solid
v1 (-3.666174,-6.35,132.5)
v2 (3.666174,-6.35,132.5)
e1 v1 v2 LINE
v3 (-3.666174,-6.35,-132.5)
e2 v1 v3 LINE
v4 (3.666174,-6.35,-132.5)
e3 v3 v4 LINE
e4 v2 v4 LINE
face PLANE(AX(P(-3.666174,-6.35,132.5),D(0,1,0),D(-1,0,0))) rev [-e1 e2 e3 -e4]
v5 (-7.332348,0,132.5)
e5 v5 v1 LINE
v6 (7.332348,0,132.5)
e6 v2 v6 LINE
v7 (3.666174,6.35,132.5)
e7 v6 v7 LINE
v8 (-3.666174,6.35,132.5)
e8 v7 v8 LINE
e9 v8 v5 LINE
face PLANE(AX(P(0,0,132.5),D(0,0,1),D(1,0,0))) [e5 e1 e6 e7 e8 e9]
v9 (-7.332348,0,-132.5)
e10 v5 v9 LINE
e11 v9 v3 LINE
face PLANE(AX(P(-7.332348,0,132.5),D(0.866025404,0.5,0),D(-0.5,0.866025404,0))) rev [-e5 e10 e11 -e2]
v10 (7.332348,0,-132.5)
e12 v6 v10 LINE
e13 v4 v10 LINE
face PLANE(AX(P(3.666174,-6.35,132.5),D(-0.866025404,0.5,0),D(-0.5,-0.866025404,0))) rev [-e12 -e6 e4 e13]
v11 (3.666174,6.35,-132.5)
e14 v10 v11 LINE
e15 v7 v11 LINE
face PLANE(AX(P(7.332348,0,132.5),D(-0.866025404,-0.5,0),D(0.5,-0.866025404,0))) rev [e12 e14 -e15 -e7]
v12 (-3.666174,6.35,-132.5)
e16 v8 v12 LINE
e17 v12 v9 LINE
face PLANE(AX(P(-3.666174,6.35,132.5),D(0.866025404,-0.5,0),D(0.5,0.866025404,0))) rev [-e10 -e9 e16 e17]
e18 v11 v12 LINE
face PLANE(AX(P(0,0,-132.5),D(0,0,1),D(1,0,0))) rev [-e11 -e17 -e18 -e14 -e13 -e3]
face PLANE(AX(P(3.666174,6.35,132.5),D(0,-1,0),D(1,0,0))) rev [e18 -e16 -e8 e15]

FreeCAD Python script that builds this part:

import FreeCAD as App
import Part
import Sketcher

V = App.Vector
Q = App.Units.Quantity


def add_polygon(sketch, points):
    """Adds a closed chain of lines whose ends are joined by coincident constraints."""
    first, n = sketch.GeometryCount, len(points)
    for a, b in zip(points, points[1:] + points[:1]):
        sketch.addGeometry(Part.LineSegment(App.Vector(*a, 0), App.Vector(*b, 0)), False)
    for i in range(n):
        sketch.addConstraint(Sketcher.Constraint("Coincident", first + i, 2, first + (i + 1) % n, 1))

doc = App.newDocument("Part")
body = doc.addObject("PartDesign::Body", "Body")

# Sketch on XY plane
sketch1 = doc.addObject("Sketcher::SketchObject", "Sketch")
body.addObject(sketch1)
sketch1.AttachmentSupport = (doc.XY_Plane, [""])
sketch1.MapMode = "FlatFace"
add_polygon(sketch1, [(7, 0), (4, 6), (-4, 6), (-7, 0), (-4, -6), (4, -6)])  # lines 0-5
sketch1.addConstraint(Sketcher.Constraint("Horizontal", 1))
sketch1.addConstraint(Sketcher.Constraint("Horizontal", 4))
sketch1.addConstraint(Sketcher.Constraint("Symmetric", 0, 2, 3, 2, -1, 1))
sketch1.addConstraint(Sketcher.Constraint("Symmetric", 2, 2, 5, 2, -1, 1))
sketch1.addConstraint(Sketcher.Constraint("PointOnObject", 2, 2, -1))
sketch1.addConstraint(Sketcher.Constraint("Parallel", 2, 5))
sketch1.addConstraint(Sketcher.Constraint("Vertical", 1, 2, 3, 2))
sketch1.addConstraint(Sketcher.Constraint("Angle", 0, Q("120 deg")))
sketch1.addConstraint(Sketcher.Constraint("DistanceY", 3, 2, 1, 2, 12.7))
sketch1.addConstraint(Sketcher.Constraint("DistanceX", 1, 2, 1, 1, 7.332348))
pad1 = doc.addObject("PartDesign::Pad", "Pad")
body.addObject(pad1)
pad1.Profile = sketch1
pad1.Length = 265
pad1.Midplane = True

doc.recompute()
